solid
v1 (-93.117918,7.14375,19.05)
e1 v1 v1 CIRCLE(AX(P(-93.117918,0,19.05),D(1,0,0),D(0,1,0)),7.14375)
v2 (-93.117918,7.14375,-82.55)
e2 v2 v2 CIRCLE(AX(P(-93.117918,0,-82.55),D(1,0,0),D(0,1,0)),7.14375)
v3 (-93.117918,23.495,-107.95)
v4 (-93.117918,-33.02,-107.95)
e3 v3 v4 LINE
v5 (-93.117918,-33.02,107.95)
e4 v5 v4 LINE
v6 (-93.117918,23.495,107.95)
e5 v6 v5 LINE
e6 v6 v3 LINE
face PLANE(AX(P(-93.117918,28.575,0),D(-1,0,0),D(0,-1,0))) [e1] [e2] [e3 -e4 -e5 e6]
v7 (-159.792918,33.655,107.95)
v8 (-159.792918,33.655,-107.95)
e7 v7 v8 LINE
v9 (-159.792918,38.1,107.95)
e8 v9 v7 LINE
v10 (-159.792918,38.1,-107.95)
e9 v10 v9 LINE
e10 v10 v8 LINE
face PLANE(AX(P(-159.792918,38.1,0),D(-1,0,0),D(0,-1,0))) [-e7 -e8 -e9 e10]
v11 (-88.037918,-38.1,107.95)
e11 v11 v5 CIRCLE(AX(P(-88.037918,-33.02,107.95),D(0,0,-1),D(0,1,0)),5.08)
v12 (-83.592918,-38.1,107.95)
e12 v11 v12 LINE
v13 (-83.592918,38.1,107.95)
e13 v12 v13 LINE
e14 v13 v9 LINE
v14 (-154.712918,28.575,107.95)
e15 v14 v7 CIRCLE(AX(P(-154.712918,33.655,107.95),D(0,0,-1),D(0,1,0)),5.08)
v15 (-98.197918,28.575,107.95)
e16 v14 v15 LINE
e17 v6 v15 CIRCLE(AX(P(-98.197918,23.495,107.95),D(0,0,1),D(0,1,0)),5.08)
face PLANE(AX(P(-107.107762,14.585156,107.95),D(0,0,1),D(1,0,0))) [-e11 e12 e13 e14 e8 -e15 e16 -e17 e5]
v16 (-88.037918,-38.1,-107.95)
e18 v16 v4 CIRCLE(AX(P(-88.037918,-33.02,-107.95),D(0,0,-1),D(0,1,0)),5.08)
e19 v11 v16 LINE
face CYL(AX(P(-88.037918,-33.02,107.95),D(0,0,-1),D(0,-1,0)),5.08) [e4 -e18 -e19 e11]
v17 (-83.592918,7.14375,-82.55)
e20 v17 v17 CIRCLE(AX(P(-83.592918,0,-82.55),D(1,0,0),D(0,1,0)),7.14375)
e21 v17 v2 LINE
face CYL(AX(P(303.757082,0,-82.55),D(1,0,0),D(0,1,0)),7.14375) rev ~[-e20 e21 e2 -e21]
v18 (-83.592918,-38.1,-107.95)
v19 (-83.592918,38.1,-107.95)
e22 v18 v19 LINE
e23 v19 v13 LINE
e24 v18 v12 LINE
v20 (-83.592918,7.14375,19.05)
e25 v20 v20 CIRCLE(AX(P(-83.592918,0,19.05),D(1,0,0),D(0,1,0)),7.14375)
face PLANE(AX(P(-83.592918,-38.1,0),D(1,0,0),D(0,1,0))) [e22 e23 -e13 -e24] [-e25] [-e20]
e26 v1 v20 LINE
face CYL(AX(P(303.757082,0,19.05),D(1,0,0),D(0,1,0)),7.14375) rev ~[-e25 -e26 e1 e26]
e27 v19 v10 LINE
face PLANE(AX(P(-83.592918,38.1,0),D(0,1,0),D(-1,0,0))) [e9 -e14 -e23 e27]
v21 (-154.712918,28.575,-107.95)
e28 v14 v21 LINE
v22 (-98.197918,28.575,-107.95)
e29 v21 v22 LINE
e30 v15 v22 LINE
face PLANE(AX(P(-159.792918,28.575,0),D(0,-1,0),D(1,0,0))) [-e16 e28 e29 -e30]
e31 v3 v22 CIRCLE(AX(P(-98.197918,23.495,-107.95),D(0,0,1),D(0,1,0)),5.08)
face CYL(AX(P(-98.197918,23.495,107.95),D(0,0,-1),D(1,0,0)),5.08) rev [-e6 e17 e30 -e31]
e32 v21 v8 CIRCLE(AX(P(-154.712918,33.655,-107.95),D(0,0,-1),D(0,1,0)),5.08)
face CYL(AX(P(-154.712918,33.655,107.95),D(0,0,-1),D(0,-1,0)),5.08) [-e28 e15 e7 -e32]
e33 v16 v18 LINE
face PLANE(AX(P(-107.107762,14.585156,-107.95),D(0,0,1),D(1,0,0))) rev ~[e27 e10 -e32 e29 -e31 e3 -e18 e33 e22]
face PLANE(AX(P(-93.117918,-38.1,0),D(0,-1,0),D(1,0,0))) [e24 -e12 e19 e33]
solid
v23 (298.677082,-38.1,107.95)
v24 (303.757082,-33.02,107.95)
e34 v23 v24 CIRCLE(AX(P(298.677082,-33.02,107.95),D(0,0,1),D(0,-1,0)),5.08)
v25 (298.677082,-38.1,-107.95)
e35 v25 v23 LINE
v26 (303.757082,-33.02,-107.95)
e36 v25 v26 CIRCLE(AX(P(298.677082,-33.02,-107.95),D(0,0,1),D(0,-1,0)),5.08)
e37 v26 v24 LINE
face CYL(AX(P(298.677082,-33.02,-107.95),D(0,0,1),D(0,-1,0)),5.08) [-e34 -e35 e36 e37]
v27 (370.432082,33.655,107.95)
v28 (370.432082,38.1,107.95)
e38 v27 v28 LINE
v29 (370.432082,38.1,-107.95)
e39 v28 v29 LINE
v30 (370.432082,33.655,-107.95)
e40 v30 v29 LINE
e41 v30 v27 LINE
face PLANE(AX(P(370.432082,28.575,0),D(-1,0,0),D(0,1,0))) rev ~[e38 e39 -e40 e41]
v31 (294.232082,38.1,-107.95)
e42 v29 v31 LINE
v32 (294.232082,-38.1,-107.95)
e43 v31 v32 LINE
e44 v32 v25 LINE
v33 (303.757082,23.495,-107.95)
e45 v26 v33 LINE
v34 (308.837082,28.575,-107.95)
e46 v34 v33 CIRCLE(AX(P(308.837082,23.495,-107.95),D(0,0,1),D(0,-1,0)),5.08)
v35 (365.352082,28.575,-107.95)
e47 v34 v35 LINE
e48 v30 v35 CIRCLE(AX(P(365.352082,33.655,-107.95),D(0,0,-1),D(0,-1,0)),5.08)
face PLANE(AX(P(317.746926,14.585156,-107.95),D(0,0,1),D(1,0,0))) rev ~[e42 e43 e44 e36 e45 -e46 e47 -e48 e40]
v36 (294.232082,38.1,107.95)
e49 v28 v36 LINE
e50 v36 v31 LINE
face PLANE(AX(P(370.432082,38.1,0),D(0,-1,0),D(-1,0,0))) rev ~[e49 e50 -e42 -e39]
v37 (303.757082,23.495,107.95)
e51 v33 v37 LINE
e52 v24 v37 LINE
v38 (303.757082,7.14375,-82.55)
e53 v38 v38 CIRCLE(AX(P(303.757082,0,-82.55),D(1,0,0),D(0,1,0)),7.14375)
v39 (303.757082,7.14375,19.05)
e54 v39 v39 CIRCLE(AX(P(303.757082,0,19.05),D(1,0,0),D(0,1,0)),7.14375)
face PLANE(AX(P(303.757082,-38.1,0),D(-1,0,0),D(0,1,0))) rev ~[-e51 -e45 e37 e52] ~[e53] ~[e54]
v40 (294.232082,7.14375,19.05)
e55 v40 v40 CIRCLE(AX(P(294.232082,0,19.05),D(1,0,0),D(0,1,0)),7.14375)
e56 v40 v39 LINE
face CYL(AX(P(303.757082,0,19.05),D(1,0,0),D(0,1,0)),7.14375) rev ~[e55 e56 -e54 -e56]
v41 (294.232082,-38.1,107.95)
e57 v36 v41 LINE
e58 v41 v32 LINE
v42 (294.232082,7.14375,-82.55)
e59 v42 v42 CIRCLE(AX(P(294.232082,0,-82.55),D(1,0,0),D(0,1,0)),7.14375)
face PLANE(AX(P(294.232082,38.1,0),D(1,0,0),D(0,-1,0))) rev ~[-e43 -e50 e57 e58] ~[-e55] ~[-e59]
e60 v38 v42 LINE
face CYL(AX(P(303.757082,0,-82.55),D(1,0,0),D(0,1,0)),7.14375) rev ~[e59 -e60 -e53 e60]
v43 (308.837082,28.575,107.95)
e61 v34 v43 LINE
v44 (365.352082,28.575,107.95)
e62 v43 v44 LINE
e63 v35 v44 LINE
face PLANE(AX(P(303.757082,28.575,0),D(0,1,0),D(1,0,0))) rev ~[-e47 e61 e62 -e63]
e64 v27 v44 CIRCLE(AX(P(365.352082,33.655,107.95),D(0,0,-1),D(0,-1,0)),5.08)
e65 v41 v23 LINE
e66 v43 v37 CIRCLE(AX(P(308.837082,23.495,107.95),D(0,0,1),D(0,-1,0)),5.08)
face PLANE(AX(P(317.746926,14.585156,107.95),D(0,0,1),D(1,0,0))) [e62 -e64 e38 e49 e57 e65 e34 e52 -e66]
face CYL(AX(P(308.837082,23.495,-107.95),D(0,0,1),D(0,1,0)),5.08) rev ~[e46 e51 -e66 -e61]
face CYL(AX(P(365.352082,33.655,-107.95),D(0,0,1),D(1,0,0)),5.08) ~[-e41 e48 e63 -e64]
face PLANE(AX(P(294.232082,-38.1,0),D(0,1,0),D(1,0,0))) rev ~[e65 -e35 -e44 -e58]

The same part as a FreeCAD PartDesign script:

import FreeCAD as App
import Part
import Sketcher
from FreeCAD import Vector
Q = App.Units.Quantity


def edges_at(feature, points):
    """Names of the edges that pass closest to the given points."""
    edges = feature.Shape.Edges
    near = lambda p: min(range(len(edges)), key=lambda i: edges[i].distToShape(Part.Vertex(*p))[0])
    return sorted({f"Edge{near(p) + 1}" for p in points})


def add_polygon(sketch, points):
    """Adds a closed chain of lines whose ends are joined by coincident constraints."""
    first, n = sketch.GeometryCount, len(points)
    for a, b in zip(points, points[1:] + points[:1]):
        sketch.addGeometry(Part.LineSegment(App.Vector(*a, 0), App.Vector(*b, 0)), False)
    for i in range(n):
        sketch.addConstraint(Sketcher.Constraint("Coincident", first + i, 2, first + (i + 1) % n, 1))

doc = App.newDocument("Part")
body = doc.addObject("PartDesign::Body", "Body")
body.AllowCompound = True

# Sketch on XY plane
sketch1 = body.newObject("Sketcher::SketchObject", "Sketch")
sketch1.AttachmentSupport = (doc.getObject("XY_Plane"), [""])
sketch1.MapMode = "FlatFace"
add_polygon(sketch1, [(294, -38), (304, -38), (304, 29), (370, 29), (370, 38), (294, 38)])  # lines 0-5
add_polygon(sketch1, [(-93, -38), (-84, -38), (-84, 38), (-160, 38), (-160, 29), (-93, 29)])  # lines 6-11
sketch1.addConstraint(Sketcher.Constraint("Horizontal", 0))
sketch1.addConstraint(Sketcher.Constraint("Vertical", 1))
sketch1.addConstraint(Sketcher.Constraint("Horizontal", 2))
sketch1.addConstraint(Sketcher.Constraint("Vertical", 3))
sketch1.addConstraint(Sketcher.Constraint("Horizontal", 4))
sketch1.addConstraint(Sketcher.Constraint("Vertical", 5))
sketch1.addConstraint(Sketcher.Constraint("Horizontal", 6))
sketch1.addConstraint(Sketcher.Constraint("Vertical", 7))
sketch1.addConstraint(Sketcher.Constraint("Horizontal", 8))
sketch1.addConstraint(Sketcher.Constraint("Vertical", 9))
sketch1.addConstraint(Sketcher.Constraint("Horizontal", 10))
sketch1.addConstraint(Sketcher.Constraint("Vertical", 11))
sketch1.addConstraint(Sketcher.Constraint("Horizontal", 5, 2, 6, 2))
sketch1.addConstraint(Sketcher.Constraint("Horizontal", 4, 2, 7, 2))
sketch1.addConstraint(Sketcher.Constraint("Horizontal", 2, 2, 9, 2))
sketch1.addConstraint(Sketcher.Constraint("Equal", 0, 6))
sketch1.addConstraint(Sketcher.Constraint("Equal", 4, 8))
sketch1.addConstraint(Sketcher.Constraint("Equal", 10, 1))
sketch1.addConstraint(Sketcher.Constraint("Equal", 6, 3))
sketch1.addConstraint(Sketcher.Constraint("DistanceX", 4, 2, 4, 1, Q("3 in")))
sketch1.addConstraint(Sketcher.Constraint("DistanceY", 0, 2, -1, 1, Q("1.5 in")))
sketch1.addConstraint(Sketcher.Constraint("DistanceX", 0, 1, 0, 2, Q("0.375 in")))
sketch1.addConstraint(Sketcher.Constraint("DistanceX", 6, 2, 0, 2, Q("15.25 in")))
sketch1.addConstraint(Sketcher.Constraint("DistanceX", -1, 1, 2, 2, 370.432082))
pad1 = body.newObject("PartDesign::Pad", "Pad")
pad1.Profile = sketch1
pad1.Length = Q("8.5 in")
pad1.Midplane = True
doc.recompute()

fillet = body.newObject("PartDesign::Fillet", "Fillet")
fillet.Base = (pad1, edges_at(pad1, [
    (-159.793, 28.575, 0),
    (-93.118, 28.575, 0),
    (-93.118, -38.1, 0),
    (303.757, -38.1, 0),
    (303.757, 28.575, 0),
    (370.432, 28.575, 0),
]))
fillet.Radius = Q("0.2 in")

# Sketch on YZ plane
sketch2 = body.newObject("Sketcher::SketchObject", "Sketch001")
sketch2.AttachmentSupport = (doc.getObject("YZ_Plane"), [""])
sketch2.MapMode = "FlatFace"
sketch2.AttachmentOffset = App.Placement(Vector(0, 0, 303.757082), App.Rotation())
sketch2.addGeometry(Part.Circle(Vector(0, -83, 0), Vector(0, 0, 1), 7), False)
sketch2.addGeometry(Part.Circle(Vector(0, 19, 0), Vector(0, 0, 1), 7), False)
sketch2.addConstraint(Sketcher.Constraint("Equal", 0, 1))
sketch2.addConstraint(Sketcher.Constraint("PointOnObject", 0, 3, -2))
sketch2.addConstraint(Sketcher.Constraint("PointOnObject", 1, 3, -2))
sketch2.addConstraint(Sketcher.Constraint("Diameter", 0, Q("0.5625 in")))
sketch2.addConstraint(Sketcher.Constraint("DistanceY", 0, 3, 1, 3, Q("4 in")))
sketch2.addConstraint(Sketcher.Constraint("DistanceY", 0, 3, -1, 1, Q("3.25 in")))
pocket1 = body.newObject("PartDesign::Pocket", "Pocket")
pocket1.Profile = sketch2
pocket1.Length = Q("32.2 in")
pocket1.Midplane = True

# Sketch on YZ plane
sketch3 = body.newObject("Sketcher::SketchObject", "Sketch002")
sketch3.AttachmentSupport = (doc.getObject("YZ_Plane"), [""])
sketch3.MapMode = "FlatFace"
sketch3.AttachmentOffset = App.Placement(Vector(0, 0, -83.592918), App.Rotation())
sketch3.addGeometry(Part.Circle(Vector(0, -83, 0), Vector(0, 0, 1), 7), False)
sketch3.addGeometry(Part.Circle(Vector(0, 19, 0), Vector(0, 0, 1), 7), False)
sketch3.addConstraint(Sketcher.Constraint("Equal", 0, 1))
sketch3.addConstraint(Sketcher.Constraint("PointOnObject", 0, 3, -2))
sketch3.addConstraint(Sketcher.Constraint("PointOnObject", 1, 3, -2))
sketch3.addConstraint(Sketcher.Constraint("Diameter", 0, Q("0.5625 in")))
sketch3.addConstraint(Sketcher.Constraint("DistanceY", 0, 3, 1, 3, Q("4 in")))
sketch3.addConstraint(Sketcher.Constraint("DistanceY", 0, 3, -1, 1, Q("3.25 in")))
pocket2 = body.newObject("PartDesign::Pocket", "Pocket001")
pocket2.Profile = sketch3
pocket2.Length = Q("1 in")

doc.recompute()
